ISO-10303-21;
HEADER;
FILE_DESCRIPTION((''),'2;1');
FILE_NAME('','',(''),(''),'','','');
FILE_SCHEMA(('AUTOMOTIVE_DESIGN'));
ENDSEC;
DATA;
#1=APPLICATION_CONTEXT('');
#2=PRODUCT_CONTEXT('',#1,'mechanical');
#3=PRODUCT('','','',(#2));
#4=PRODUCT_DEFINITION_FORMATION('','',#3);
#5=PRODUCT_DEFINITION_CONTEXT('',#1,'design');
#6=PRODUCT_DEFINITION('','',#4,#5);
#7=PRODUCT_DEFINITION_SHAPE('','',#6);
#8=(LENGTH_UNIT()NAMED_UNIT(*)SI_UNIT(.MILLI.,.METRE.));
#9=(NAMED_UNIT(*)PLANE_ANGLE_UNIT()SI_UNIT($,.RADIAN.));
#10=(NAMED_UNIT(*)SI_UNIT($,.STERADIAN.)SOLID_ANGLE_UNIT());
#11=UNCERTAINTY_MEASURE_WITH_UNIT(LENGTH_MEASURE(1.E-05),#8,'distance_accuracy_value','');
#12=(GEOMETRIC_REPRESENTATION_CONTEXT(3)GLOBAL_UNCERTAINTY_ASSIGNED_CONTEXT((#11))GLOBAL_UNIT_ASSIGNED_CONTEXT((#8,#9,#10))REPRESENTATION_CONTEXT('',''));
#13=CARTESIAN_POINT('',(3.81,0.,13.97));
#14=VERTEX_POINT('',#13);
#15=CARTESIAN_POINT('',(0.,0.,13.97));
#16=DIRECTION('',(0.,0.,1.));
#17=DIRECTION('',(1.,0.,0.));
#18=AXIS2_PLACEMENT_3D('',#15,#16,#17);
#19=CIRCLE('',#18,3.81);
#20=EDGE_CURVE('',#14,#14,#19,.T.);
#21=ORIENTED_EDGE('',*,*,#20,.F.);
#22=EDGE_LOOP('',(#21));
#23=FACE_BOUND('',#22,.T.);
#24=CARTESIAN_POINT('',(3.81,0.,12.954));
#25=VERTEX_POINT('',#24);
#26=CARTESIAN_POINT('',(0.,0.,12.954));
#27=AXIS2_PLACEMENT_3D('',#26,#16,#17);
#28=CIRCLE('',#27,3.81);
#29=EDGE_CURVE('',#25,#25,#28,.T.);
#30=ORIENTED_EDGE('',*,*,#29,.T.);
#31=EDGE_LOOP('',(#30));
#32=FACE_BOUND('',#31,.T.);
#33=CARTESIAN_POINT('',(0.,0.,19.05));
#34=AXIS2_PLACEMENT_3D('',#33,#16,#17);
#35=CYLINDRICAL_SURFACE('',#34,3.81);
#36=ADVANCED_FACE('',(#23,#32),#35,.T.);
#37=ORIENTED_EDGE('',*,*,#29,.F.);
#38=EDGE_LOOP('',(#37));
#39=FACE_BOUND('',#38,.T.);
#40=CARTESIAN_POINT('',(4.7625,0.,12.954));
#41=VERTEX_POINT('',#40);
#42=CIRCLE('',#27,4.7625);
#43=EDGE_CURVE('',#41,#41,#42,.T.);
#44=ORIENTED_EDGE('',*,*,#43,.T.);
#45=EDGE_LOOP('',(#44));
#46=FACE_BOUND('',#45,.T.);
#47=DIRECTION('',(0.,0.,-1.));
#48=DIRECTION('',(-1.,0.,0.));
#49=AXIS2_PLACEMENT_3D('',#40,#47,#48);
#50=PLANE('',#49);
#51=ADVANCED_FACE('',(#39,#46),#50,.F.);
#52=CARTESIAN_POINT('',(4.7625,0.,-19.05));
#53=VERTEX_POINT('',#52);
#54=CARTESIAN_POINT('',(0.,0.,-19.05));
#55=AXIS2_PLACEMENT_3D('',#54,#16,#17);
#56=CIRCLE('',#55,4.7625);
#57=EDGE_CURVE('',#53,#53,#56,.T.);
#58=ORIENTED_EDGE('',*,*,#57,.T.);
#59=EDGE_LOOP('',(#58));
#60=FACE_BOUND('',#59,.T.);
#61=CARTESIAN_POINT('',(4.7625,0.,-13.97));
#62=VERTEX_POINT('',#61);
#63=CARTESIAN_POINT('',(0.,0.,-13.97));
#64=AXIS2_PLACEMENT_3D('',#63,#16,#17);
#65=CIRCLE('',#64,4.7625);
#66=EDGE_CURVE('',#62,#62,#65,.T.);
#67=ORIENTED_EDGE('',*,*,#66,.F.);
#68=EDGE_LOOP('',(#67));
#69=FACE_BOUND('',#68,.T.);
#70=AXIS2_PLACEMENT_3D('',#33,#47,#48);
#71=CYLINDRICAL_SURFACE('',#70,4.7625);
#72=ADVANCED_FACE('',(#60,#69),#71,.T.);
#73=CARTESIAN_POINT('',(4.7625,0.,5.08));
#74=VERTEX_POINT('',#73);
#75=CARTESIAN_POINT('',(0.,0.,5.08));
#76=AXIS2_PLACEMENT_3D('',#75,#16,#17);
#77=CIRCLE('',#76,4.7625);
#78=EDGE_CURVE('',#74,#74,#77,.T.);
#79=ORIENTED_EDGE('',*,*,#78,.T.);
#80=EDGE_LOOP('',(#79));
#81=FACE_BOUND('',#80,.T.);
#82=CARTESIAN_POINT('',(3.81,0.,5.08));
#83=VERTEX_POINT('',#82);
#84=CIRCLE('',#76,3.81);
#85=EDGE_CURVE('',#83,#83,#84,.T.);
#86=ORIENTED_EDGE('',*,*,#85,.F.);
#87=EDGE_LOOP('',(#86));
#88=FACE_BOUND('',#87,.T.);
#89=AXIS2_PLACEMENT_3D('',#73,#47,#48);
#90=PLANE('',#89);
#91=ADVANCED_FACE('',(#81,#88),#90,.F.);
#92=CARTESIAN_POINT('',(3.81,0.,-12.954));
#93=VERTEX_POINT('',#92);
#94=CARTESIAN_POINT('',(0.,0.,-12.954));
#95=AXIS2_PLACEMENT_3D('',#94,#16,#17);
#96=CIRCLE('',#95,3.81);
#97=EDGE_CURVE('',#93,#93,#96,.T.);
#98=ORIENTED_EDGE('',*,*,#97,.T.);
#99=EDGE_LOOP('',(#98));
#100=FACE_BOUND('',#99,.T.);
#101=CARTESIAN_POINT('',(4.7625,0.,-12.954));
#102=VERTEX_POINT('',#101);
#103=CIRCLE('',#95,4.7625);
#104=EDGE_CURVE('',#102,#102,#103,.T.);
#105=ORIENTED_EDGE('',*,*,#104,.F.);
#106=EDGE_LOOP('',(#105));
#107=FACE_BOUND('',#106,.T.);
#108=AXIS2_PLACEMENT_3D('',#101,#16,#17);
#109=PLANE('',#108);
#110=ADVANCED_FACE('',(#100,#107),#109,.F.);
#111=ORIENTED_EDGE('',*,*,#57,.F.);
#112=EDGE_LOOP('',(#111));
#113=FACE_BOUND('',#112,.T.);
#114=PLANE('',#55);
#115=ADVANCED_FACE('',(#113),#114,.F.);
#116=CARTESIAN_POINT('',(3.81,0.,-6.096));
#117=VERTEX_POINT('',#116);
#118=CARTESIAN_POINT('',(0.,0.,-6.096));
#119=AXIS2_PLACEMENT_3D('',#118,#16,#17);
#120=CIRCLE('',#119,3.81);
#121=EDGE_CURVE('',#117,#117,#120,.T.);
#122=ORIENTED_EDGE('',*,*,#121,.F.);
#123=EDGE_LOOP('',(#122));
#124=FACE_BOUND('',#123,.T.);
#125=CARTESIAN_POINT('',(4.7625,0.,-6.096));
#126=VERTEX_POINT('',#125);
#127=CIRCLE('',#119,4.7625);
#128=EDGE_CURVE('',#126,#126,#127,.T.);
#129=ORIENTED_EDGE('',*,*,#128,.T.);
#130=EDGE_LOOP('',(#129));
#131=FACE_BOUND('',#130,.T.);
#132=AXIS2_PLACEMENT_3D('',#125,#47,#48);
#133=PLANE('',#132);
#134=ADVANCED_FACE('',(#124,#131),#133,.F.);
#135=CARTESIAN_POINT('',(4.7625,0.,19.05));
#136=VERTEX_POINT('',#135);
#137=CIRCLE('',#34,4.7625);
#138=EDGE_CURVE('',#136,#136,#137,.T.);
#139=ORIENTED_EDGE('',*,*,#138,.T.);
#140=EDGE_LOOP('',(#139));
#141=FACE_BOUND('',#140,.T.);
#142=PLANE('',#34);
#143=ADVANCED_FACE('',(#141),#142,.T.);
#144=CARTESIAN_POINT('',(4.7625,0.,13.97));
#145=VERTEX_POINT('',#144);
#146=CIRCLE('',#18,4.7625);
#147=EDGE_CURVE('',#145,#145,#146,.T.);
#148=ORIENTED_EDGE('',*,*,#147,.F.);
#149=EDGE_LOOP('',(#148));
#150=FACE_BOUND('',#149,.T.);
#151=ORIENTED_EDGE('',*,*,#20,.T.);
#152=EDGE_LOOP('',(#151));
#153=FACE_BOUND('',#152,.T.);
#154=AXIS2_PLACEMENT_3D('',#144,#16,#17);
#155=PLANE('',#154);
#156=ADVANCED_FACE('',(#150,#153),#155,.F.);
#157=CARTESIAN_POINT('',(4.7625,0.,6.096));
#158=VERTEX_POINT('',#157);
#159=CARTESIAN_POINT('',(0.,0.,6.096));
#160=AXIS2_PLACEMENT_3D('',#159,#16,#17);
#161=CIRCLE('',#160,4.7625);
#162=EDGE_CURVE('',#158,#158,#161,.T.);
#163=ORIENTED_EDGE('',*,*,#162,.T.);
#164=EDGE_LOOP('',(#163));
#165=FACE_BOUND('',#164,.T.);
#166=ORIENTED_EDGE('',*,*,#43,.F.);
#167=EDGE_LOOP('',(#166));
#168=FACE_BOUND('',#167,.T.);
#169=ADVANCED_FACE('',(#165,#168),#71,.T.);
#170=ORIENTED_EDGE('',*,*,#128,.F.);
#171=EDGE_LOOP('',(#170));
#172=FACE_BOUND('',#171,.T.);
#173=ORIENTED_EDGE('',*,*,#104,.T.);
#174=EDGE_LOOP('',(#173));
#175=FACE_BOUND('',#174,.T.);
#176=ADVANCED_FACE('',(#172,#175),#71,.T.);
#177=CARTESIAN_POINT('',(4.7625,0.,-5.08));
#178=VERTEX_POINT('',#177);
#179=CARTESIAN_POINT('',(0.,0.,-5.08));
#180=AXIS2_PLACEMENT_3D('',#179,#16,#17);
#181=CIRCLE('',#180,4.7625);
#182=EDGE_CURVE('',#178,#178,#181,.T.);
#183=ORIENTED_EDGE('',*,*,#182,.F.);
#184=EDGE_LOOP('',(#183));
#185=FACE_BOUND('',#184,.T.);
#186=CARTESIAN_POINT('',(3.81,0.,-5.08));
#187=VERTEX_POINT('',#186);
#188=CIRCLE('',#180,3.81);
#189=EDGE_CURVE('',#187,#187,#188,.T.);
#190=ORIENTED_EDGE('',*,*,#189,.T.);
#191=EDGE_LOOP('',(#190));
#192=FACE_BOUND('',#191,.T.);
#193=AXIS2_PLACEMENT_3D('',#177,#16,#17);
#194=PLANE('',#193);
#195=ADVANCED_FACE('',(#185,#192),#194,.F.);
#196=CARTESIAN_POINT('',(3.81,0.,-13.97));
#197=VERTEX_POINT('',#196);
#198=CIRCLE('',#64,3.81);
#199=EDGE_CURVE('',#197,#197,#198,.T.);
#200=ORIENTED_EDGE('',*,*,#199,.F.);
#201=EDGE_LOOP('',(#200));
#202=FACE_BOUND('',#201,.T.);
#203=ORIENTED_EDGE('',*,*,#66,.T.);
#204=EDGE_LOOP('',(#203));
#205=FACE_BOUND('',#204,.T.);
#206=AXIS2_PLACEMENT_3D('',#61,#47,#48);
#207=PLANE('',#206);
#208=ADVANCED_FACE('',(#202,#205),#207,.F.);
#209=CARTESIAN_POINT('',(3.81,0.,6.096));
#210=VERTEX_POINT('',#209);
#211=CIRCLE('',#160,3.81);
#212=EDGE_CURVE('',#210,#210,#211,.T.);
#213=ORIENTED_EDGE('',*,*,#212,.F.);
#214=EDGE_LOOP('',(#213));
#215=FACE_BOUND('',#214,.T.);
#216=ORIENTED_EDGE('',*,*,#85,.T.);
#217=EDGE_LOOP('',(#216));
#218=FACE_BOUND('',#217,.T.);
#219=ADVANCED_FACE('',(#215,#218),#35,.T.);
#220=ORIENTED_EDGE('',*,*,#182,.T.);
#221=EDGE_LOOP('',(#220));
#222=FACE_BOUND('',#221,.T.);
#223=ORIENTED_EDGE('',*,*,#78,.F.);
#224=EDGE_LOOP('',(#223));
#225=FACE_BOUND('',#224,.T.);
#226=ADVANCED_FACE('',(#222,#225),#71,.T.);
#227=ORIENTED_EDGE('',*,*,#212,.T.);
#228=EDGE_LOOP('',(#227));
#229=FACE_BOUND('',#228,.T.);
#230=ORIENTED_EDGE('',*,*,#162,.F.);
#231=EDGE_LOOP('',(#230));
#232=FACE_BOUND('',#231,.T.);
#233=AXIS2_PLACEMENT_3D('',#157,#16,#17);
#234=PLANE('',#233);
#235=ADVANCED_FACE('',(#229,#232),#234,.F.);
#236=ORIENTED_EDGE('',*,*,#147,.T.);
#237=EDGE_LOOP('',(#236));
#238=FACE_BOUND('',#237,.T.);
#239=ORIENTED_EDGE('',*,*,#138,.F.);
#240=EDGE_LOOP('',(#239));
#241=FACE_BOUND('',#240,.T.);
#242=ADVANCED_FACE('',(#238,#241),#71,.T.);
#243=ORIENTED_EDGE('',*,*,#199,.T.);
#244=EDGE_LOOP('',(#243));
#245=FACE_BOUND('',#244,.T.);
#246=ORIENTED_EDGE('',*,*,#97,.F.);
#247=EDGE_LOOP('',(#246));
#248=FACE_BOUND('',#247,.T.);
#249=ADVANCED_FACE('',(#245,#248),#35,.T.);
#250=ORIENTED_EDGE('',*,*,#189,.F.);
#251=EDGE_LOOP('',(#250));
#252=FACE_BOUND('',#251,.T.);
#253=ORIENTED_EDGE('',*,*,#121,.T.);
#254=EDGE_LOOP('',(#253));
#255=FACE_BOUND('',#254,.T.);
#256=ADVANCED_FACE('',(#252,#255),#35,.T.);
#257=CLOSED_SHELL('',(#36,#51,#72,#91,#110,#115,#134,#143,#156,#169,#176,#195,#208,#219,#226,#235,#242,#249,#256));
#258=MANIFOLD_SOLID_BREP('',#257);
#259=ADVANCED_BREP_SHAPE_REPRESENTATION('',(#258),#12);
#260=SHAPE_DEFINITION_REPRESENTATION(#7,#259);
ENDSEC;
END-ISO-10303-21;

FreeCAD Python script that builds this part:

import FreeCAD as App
import Part
import Sketcher
Q = App.Units.Quantity

doc = App.newDocument("Part")
body = doc.addObject("PartDesign::Body", "Body")

# Sketch on XY plane
sketch1 = doc.addObject("Sketcher::SketchObject", "Sketch")
body.addObject(sketch1)
sketch1.AttachmentSupport = (doc.XY_Plane, [""])
sketch1.MapMode = "FlatFace"
sketch1.addGeometry(Part.Circle(App.Vector(0, 0, 0), App.Vector(0, 0, 1), 4.8), False)
sketch1.addConstraint([
    Sketcher.Constraint("Coincident", 0, 3, -1, 1),
    Sketcher.Constraint("Diameter", 0, Q("0.375 in")),
])
pad1 = doc.addObject("PartDesign::Pad", "Pad")
body.addObject(pad1)
pad1.Profile = sketch1
pad1.Length = Q("1.5 in")
pad1.Midplane = True

# Sketch on XZ plane
sketch2 = doc.addObject("Sketcher::SketchObject", "Sketch001")
body.addObject(sketch2)
sketch2.AttachmentSupport = (doc.XZ_Plane, [""])
sketch2.MapMode = "FlatFace"
sketch2.addGeometry([
    Part.LineSegment(App.Vector(3.8, -14, 0), App.Vector(3.8, -13, 0)),  # 0
    Part.LineSegment(App.Vector(3.8, -13, 0), App.Vector(4.8, -13, 0)),  # 1
    Part.LineSegment(App.Vector(4.8, -13, 0), App.Vector(4.8, -14, 0)),  # 2
    Part.LineSegment(App.Vector(4.8, -14, 0), App.Vector(3.8, -14, 0)),  # 3
    Part.LineSegment(App.Vector(3.8, 13, 0), App.Vector(3.8, 14, 0)),  # 4
    Part.LineSegment(App.Vector(3.8, 14, 0), App.Vector(4.8, 14, 0)),  # 5
    Part.LineSegment(App.Vector(4.8, 14, 0), App.Vector(4.8, 13, 0)),  # 6
    Part.LineSegment(App.Vector(4.8, 13, 0), App.Vector(3.8, 13, 0)),  # 7
    Part.LineSegment(App.Vector(3.8, -6.1, 0), App.Vector(3.8, -5.1, 0)),  # 8
    Part.LineSegment(App.Vector(3.8, -5.1, 0), App.Vector(4.8, -5.1, 0)),  # 9
    Part.LineSegment(App.Vector(4.8, -5.1, 0), App.Vector(4.8, -6.1, 0)),  # 10
    Part.LineSegment(App.Vector(4.8, -6.1, 0), App.Vector(3.8, -6.1, 0)),  # 11
    Part.LineSegment(App.Vector(3.8, 5.1, 0), App.Vector(3.8, 6.1, 0)),  # 12
    Part.LineSegment(App.Vector(3.8, 6.1, 0), App.Vector(4.8, 6.1, 0)),  # 13
    Part.LineSegment(App.Vector(4.8, 6.1, 0), App.Vector(4.8, 5.1, 0)),  # 14
    Part.LineSegment(App.Vector(4.8, 5.1, 0), App.Vector(3.8, 5.1, 0)),  # 15
], False)
sketch2.addConstraint([
    Sketcher.Constraint("Coincident", 0, 2, 1, 1),
    Sketcher.Constraint("Coincident", 1, 2, 2, 1),
    Sketcher.Constraint("Coincident", 2, 2, 3, 1),
    Sketcher.Constraint("Coincident", 3, 2, 0, 1),
    Sketcher.Constraint("Coincident", 4, 2, 5, 1),
    Sketcher.Constraint("Coincident", 5, 2, 6, 1),
    Sketcher.Constraint("Coincident", 6, 2, 7, 1),
    Sketcher.Constraint("Coincident", 7, 2, 4, 1),
    Sketcher.Constraint("Coincident", 8, 2, 9, 1),
    Sketcher.Constraint("Coincident", 9, 2, 10, 1),
    Sketcher.Constraint("Coincident", 10, 2, 11, 1),
    Sketcher.Constraint("Coincident", 11, 2, 8, 1),
    Sketcher.Constraint("Coincident", 12, 2, 13, 1),
    Sketcher.Constraint("Coincident", 13, 2, 14, 1),
    Sketcher.Constraint("Coincident", 14, 2, 15, 1),
    Sketcher.Constraint("Coincident", 15, 2, 12, 1),
    Sketcher.Constraint("Vertical", 0),
    Sketcher.Constraint("Horizontal", 1),
    Sketcher.Constraint("Vertical", 2),
    Sketcher.Constraint("Horizontal", 3),
    Sketcher.Constraint("Vertical", 4),
    Sketcher.Constraint("Horizontal", 5),
    Sketcher.Constraint("Vertical", 6),
    Sketcher.Constraint("Horizontal", 7),
    Sketcher.Constraint("Vertical", 8),
    Sketcher.Constraint("Horizontal", 9),
    Sketcher.Constraint("Vertical", 10),
    Sketcher.Constraint("Horizontal", 11),
    Sketcher.Constraint("Vertical", 12),
    Sketcher.Constraint("Horizontal", 13),
    Sketcher.Constraint("Vertical", 14),
    Sketcher.Constraint("Horizontal", 15),
    Sketcher.Constraint("Symmetric", 3, 2, 4, 2, -1),
    Sketcher.Constraint("Symmetric", 1, 2, 6, 2, -1),
    Sketcher.Constraint("Symmetric", 11, 2, 12, 2, -1),
    Sketcher.Constraint("Symmetric", 9, 2, 14, 2, -1),
    Sketcher.Constraint("Vertical", 7, 2, 8, 2),
    Sketcher.Constraint("Vertical", 6, 2, 9, 2),
    Sketcher.Constraint("Equal", 6, 8),
    Sketcher.Constraint("DistanceY", 0, 1, 0, 2, Q("0.04 in")),
    Sketcher.Constraint("DistanceY", 8, 2, -1, 1, Q("0.2 in")),
    Sketcher.Constraint("DistanceY", 3, 2, 4, 2, Q("1.1 in")),
    Sketcher.Constraint("DistanceX", -1, 1, 0, 2, Q("0.15 in")),
    Sketcher.Constraint("DistanceX", 1, 1, 1, 2, Q("0.0375 in")),
])
groove = doc.addObject("PartDesign::Groove", "Groove")
body.addObject(groove)
groove.Profile = sketch2
groove.ReferenceAxis = (sketch2, ["V_Axis"])
groove.Angle = 360

doc.recompute()
